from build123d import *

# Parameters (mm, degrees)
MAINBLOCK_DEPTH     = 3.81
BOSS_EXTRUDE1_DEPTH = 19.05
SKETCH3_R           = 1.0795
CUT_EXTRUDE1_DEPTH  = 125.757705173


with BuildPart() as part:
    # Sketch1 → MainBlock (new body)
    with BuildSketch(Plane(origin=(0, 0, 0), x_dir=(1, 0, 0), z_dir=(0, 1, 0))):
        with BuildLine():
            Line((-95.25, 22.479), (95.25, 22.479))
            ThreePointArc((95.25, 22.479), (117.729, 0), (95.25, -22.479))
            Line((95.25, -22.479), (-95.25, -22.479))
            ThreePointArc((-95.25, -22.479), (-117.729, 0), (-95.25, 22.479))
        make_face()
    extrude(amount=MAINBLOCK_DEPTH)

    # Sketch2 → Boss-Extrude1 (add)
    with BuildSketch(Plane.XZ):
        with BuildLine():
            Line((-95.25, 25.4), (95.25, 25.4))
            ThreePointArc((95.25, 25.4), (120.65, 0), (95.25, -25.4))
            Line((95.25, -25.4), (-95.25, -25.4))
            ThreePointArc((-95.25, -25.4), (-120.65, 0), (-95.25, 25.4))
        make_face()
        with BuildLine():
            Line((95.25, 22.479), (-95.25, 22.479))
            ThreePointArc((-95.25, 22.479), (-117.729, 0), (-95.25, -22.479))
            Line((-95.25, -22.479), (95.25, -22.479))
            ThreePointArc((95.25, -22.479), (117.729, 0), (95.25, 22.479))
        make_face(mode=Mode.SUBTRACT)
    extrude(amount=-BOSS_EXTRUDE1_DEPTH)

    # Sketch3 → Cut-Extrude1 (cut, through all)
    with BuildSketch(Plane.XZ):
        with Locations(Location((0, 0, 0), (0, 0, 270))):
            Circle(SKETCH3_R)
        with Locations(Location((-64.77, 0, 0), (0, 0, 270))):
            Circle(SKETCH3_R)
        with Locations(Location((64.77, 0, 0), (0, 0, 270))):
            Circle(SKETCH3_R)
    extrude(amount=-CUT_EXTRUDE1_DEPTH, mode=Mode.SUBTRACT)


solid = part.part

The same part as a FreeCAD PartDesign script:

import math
import FreeCAD as App
import Part
import Sketcher
Q = App.Units.Quantity

doc = App.newDocument("Part")
body = doc.addObject("PartDesign::Body", "Body")

# Sketch on XZ plane
sketch1 = body.newObject("Sketcher::SketchObject", "Sketch")
sketch1.AttachmentSupport = (doc.getObject("XZ_Plane"), [""])
sketch1.MapMode = "FlatFace"
sketch1.addGeometry([
    Part.LineSegment(App.Vector(95, -22, 0), App.Vector(-95, -22, 0)),
    Part.ArcOfCircle(Part.Circle(App.Vector(-95, 0, 0), App.Vector(0, 0, 1), 22), math.radians(90), math.radians(270)),
    Part.LineSegment(App.Vector(-95, 22, 0), App.Vector(95, 22, 0)),
    Part.ArcOfCircle(Part.Circle(App.Vector(95, 0, 0), App.Vector(0, 0, 1), 22), math.radians(-90), math.radians(90)),
], False)
sketch1.addConstraint([
    Sketcher.Constraint("Tangent", 0, 2, 1, 2),
    Sketcher.Constraint("Tangent", 1, 1, 2, 1),
    Sketcher.Constraint("Tangent", 2, 2, 3, 2),
    Sketcher.Constraint("Tangent", 3, 1, 0, 1),
    Sketcher.Constraint("Horizontal", 0),
    Sketcher.Constraint("Horizontal", 2),
    Sketcher.Constraint("Symmetric", 1, 3, 3, 3, -1, 1),
    Sketcher.Constraint("DistanceX", 0, 2, 0, 1, Q("7.5 in")),
    Sketcher.Constraint("Radius", 1, Q("0.885 in")),
])
pad1 = body.newObject("PartDesign::Pad", "Pad")
pad1.Profile = sketch1
pad1.Length = Q("0.15 in")
pad1.Reversed = True

# Sketch on XZ plane
sketch2 = body.newObject("Sketcher::SketchObject", "Sketch001")
sketch2.AttachmentSupport = (doc.getObject("XZ_Plane"), [""])
sketch2.MapMode = "FlatFace"
sketch2.addGeometry([
    Part.LineSegment(App.Vector(95, 25, 0), App.Vector(-95, 25, 0)),  # 0
    Part.ArcOfCircle(Part.Circle(App.Vector(-95, 0, 0), App.Vector(0, 0, 1), 25), math.radians(90), math.radians(270)),  # 1
    Part.LineSegment(App.Vector(-95, -25, 0), App.Vector(95, -25, 0)),  # 2
    Part.ArcOfCircle(Part.Circle(App.Vector(95, 0, 0), App.Vector(0, 0, 1), 25), math.radians(-90), math.radians(90)),  # 3
    Part.ArcOfCircle(Part.Circle(App.Vector(95, 0, 0), App.Vector(0, 0, 1), 22), math.radians(-90), math.radians(90)),  # 4
    Part.LineSegment(App.Vector(95, -22, 0), App.Vector(-95, -22, 0)),  # 5
    Part.ArcOfCircle(Part.Circle(App.Vector(-95, 0, 0), App.Vector(0, 0, 1), 22), math.radians(90), math.radians(270)),  # 6
    Part.LineSegment(App.Vector(-95, 22, 0), App.Vector(95, 22, 0)),  # 7
], False)
sketch2.addConstraint([
    Sketcher.Constraint("Tangent", 0, 2, 1, 1),
    Sketcher.Constraint("Tangent", 1, 2, 2, 1),
    Sketcher.Constraint("Tangent", 2, 2, 3, 1),
    Sketcher.Constraint("Tangent", 3, 2, 0, 1),
    Sketcher.Constraint("Tangent", 4, 1, 5, 1),
    Sketcher.Constraint("Tangent", 5, 2, 6, 2),
    Sketcher.Constraint("Tangent", 6, 1, 7, 1),
    Sketcher.Constraint("Tangent", 7, 2, 4, 2),
    Sketcher.Constraint("Horizontal", 0),
    Sketcher.Constraint("Horizontal", 2),
    Sketcher.Constraint("Horizontal", 5),
    Sketcher.Constraint("Horizontal", 7),
    Sketcher.Constraint("Coincident", 4, 3, 3, 3),
    Sketcher.Constraint("Symmetric", 1, 3, 3, 3, -1, 1),
    Sketcher.Constraint("Vertical", 6, 3, 0, 2),
    Sketcher.Constraint("Radius", 1, Q("1 in")),
    Sketcher.Constraint("DistanceX", 0, 2, 0, 1, Q("7.5 in")),
    Sketcher.Constraint("Radius", 4, Q("0.885 in")),
])
pad2 = body.newObject("PartDesign::Pad", "Pad001")
pad2.Profile = sketch2
pad2.Length = Q("0.75 in")
pad2.Reversed = True

# Sketch on XZ plane
sketch3 = body.newObject("Sketcher::SketchObject", "Sketch002")
sketch3.AttachmentSupport = (doc.getObject("XZ_Plane"), [""])
sketch3.MapMode = "FlatFace"
sketch3.addGeometry([
    Part.Circle(App.Vector(0, 0, 0), App.Vector(0, 0, 1), 1.1),
    Part.Circle(App.Vector(-64.8, 0, 0), App.Vector(0, 0, 1), 1.1),
    Part.Circle(App.Vector(64.8, 0, 0), App.Vector(0, 0, 1), 1.1),
], False)
sketch3.addConstraint([
    Sketcher.Constraint("Coincident", 0, 3, -1, 1),
    Sketcher.Constraint("Equal", 0, 1),
    Sketcher.Constraint("Equal", 1, 2),
    Sketcher.Constraint("Symmetric", 1, 3, 2, 3, -1, 1),
    Sketcher.Constraint("PointOnObject", 1, 3, -1),
    Sketcher.Constraint("Diameter", 0, Q("0.085 in")),
    Sketcher.Constraint("DistanceX", 1, 3, 2, 3, Q("5.1 in")),
])
pocket1 = body.newObject("PartDesign::Pocket", "Pocket")
pocket1.Profile = sketch3
pocket1.Type = "ThroughAll"

doc.recompute()
